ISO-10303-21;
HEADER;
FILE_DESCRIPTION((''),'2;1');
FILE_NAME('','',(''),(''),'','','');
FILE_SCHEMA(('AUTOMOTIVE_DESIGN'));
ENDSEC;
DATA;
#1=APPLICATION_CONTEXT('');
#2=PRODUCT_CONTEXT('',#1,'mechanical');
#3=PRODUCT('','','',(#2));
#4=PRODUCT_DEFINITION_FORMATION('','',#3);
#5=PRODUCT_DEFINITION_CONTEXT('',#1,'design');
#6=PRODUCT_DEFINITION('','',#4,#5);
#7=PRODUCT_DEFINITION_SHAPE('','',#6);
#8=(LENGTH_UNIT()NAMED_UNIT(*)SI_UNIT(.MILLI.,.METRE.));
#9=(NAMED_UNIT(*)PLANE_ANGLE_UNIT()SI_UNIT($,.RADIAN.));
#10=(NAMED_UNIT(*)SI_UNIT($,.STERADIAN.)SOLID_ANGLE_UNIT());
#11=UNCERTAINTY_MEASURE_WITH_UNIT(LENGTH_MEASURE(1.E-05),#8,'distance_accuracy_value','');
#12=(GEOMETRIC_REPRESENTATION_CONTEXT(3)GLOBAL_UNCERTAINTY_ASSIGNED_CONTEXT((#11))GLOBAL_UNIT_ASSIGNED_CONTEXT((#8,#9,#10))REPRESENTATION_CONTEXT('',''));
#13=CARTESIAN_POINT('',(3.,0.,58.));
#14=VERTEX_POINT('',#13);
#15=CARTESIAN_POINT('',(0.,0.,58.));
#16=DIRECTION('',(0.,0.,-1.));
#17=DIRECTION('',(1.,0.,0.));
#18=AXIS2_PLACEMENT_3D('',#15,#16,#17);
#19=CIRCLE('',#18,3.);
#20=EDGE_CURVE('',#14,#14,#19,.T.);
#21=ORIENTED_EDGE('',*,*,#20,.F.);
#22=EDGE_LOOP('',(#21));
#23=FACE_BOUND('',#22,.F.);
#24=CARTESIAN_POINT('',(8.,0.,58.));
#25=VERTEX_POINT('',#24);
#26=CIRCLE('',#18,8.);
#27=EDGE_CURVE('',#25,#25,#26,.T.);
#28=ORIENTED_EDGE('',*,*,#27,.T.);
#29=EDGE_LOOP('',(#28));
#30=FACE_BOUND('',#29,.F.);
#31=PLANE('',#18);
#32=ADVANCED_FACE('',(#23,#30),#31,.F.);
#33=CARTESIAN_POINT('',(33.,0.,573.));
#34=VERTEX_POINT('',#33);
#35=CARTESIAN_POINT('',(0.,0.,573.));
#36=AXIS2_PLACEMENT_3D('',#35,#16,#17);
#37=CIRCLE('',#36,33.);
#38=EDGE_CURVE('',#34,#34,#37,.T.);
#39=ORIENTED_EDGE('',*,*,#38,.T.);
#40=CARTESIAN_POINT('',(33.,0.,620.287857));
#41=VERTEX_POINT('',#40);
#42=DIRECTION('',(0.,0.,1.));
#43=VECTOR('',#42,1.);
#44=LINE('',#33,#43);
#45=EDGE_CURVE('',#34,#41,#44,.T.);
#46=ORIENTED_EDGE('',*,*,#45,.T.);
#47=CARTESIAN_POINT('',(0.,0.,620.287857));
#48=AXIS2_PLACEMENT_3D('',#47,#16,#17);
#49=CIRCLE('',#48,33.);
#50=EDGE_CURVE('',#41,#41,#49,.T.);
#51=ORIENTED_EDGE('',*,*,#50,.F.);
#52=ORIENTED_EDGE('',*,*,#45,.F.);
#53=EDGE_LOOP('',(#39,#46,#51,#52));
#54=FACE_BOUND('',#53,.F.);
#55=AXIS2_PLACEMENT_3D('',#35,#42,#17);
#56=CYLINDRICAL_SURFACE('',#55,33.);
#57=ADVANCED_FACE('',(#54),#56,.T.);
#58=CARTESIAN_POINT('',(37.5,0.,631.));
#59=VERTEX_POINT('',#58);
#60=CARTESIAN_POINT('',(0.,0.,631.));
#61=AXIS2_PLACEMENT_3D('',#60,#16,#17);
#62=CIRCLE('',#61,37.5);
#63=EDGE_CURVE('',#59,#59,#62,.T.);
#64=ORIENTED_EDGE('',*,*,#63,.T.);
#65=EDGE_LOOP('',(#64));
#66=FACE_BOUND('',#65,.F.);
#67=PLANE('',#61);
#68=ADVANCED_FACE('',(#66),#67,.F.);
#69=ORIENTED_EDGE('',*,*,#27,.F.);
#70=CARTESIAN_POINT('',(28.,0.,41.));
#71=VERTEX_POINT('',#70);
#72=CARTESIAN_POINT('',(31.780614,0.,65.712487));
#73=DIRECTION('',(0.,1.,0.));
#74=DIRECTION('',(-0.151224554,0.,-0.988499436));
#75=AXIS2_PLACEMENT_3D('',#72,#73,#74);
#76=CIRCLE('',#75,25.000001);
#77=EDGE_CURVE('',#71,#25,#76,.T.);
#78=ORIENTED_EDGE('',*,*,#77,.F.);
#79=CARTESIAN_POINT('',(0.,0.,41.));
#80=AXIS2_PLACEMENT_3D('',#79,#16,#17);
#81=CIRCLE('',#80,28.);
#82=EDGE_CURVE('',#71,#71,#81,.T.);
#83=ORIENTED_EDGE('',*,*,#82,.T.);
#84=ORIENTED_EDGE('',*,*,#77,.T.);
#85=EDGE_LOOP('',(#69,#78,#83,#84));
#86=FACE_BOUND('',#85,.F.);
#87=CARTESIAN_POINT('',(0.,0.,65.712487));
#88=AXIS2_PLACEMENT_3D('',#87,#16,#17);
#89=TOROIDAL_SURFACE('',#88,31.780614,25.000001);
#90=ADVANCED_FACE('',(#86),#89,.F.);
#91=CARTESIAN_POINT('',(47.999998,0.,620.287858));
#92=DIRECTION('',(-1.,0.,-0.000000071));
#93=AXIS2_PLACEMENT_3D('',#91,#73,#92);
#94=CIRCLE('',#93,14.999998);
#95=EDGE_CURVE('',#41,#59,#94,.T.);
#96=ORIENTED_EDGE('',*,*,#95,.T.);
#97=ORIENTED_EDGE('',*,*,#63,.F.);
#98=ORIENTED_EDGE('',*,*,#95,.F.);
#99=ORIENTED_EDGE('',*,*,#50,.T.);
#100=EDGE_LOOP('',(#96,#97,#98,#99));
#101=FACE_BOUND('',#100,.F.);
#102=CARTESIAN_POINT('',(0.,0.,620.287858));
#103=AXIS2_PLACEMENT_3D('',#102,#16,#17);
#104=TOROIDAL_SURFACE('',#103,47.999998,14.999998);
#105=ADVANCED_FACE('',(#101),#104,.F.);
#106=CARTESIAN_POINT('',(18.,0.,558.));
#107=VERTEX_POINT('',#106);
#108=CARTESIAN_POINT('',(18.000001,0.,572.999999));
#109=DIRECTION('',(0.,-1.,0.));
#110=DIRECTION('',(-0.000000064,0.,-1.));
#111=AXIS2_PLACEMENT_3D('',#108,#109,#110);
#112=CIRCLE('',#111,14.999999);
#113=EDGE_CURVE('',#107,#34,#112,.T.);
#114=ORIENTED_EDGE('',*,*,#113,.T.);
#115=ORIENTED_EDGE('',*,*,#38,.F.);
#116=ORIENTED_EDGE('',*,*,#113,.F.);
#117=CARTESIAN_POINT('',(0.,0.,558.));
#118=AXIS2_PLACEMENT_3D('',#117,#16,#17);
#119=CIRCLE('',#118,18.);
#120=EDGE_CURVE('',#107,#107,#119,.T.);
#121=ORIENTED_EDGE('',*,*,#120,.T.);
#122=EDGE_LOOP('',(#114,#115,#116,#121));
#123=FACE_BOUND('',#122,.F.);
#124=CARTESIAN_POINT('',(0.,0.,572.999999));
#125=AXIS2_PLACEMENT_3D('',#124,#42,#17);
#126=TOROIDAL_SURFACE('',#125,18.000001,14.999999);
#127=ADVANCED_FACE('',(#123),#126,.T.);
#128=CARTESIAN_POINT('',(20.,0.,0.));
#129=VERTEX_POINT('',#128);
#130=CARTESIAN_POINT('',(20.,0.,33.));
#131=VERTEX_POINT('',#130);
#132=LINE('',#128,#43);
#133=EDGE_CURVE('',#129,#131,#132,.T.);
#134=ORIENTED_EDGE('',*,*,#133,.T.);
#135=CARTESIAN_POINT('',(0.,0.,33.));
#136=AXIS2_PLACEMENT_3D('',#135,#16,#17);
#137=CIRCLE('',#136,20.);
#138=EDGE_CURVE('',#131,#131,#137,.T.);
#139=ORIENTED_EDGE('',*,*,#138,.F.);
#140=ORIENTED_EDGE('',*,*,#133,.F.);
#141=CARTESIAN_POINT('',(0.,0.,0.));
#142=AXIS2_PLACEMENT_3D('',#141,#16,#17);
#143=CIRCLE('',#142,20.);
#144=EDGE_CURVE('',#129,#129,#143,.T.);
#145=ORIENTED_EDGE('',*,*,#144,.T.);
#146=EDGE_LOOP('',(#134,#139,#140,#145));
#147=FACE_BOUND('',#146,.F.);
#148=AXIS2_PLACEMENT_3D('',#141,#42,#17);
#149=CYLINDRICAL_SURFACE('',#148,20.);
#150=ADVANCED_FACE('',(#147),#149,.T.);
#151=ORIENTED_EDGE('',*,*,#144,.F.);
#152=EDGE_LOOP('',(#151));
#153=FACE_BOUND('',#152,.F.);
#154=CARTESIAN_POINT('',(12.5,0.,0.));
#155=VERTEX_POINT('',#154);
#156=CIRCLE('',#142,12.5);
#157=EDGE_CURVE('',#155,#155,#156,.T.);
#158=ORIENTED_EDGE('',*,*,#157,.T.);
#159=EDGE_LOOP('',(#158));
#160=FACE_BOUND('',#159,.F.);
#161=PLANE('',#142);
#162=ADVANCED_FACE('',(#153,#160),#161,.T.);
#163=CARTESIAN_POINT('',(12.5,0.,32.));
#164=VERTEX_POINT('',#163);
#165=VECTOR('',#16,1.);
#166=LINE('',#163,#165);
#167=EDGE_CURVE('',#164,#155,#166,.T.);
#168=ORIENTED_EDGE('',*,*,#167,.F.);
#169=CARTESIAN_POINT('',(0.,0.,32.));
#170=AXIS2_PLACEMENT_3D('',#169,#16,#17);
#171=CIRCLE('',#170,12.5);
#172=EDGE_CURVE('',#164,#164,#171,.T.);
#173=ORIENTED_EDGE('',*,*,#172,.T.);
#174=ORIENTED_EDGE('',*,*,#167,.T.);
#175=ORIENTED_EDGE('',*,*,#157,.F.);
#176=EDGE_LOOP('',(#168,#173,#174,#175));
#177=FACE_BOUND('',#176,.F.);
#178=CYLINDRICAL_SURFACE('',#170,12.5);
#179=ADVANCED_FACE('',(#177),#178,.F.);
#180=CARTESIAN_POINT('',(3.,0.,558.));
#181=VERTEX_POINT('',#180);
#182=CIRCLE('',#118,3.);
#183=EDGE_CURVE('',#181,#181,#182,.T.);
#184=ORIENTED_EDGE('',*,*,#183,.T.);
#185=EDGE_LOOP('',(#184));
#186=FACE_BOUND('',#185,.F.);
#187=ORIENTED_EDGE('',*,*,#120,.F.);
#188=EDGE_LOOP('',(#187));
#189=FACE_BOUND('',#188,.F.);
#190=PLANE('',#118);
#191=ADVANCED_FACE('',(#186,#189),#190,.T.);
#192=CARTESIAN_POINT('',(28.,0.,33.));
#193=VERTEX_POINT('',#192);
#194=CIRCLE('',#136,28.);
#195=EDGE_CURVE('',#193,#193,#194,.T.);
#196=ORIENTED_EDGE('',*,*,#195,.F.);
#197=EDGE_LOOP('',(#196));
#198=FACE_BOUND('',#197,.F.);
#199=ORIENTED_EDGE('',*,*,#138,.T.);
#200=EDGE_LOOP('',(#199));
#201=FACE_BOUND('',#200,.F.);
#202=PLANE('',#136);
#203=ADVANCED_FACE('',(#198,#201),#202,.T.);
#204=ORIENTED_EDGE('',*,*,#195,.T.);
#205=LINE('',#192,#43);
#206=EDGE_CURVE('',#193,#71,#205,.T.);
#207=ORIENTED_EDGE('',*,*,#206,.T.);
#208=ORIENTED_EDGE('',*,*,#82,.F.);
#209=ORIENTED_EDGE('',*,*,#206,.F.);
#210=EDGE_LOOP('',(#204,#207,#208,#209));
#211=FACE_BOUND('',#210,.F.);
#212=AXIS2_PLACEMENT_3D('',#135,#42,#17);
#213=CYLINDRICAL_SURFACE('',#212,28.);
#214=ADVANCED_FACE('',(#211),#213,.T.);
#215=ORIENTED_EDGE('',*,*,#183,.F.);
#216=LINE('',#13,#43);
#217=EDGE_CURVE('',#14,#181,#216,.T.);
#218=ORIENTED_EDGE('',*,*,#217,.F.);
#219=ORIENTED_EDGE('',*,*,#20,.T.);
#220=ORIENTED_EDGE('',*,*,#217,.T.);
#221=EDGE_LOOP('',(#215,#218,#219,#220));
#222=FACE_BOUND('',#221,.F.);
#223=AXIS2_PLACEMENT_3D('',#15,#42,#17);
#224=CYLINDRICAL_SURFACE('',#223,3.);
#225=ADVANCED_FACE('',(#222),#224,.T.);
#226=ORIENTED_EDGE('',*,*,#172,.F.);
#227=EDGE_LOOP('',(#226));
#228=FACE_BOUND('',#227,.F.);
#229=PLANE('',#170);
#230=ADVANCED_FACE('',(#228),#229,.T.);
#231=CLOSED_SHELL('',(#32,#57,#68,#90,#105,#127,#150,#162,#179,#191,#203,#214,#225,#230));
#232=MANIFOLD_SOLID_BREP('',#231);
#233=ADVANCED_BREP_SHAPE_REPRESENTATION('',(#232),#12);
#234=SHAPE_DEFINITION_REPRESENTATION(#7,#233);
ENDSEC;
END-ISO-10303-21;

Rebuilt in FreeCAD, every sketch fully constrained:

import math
import FreeCAD as App
import Part
import Sketcher

V = App.Vector

doc = App.newDocument("Part")
body = doc.addObject("PartDesign::Body", "Body")

# Sketch on XZ plane
sketch1 = body.newObject("Sketcher::SketchObject", "Sketch")
sketch1.AttachmentSupport = (doc.getObject("XZ_Plane"), [""])
sketch1.MapMode = "FlatFace"
sketch1.addGeometry([
    Part.LineSegment(V(0, 631, 0), V(0, 32, 0)),  # 0
    Part.LineSegment(V(0, 32, 0), V(12, 32, 0)),  # 1
    Part.LineSegment(V(12, 32, 0), V(12, 0, 0)),  # 2
    Part.LineSegment(V(12, 0, 0), V(20, 0, 0)),  # 3
    Part.LineSegment(V(20, 0, 0), V(20, 33, 0)),  # 4
    Part.LineSegment(V(20, 33, 0), V(28, 33, 0)),  # 5
    Part.LineSegment(V(28, 33, 0), V(28, 41, 0)),  # 6
    Part.ArcOfCircle(Part.Circle(V(32, 66, 0), V(0, 0, 1), 25), math.radians(-162), math.radians(-99)),  # 7
    Part.LineSegment(V(8, 58, 0), V(3, 58, 0)),  # 8
    Part.LineSegment(V(3, 58, 0), V(3, 558, 0)),  # 9
    Part.LineSegment(V(3, 558, 0), V(18, 558, 0)),  # 10
    Part.ArcOfCircle(Part.Circle(V(18, 573, 0), V(0, 0, 1), 15), math.radians(-90), math.radians(0)),  # 11
    Part.LineSegment(V(33, 573, 0), V(33, 620, 0)),  # 12
    Part.ArcOfCircle(Part.Circle(V(48, 620, 0), V(0, 0, 1), 15), math.radians(134), math.radians(180)),  # 13
    Part.LineSegment(V(38, 631, 0), V(0, 631, 0)),  # 14
], False)
sketch1.addConstraint([
    Sketcher.Constraint("Coincident", 0, 2, 1, 1),
    Sketcher.Constraint("Coincident", 1, 2, 2, 1),
    Sketcher.Constraint("Coincident", 2, 2, 3, 1),
    Sketcher.Constraint("Coincident", 3, 2, 4, 1),
    Sketcher.Constraint("Coincident", 4, 2, 5, 1),
    Sketcher.Constraint("Coincident", 5, 2, 6, 1),
    Sketcher.Constraint("Coincident", 6, 2, 7, 2),
    Sketcher.Constraint("Coincident", 7, 1, 8, 1),
    Sketcher.Constraint("Coincident", 8, 2, 9, 1),
    Sketcher.Constraint("Coincident", 9, 2, 10, 1),
    Sketcher.Constraint("Tangent", 10, 2, 11, 1),
    Sketcher.Constraint("Tangent", 11, 2, 12, 1),
    Sketcher.Constraint("Tangent", 12, 2, 13, 2),
    Sketcher.Constraint("Coincident", 13, 1, 14, 1),
    Sketcher.Constraint("Coincident", 14, 2, 0, 1),
    Sketcher.Constraint("Vertical", 0),
    Sketcher.Constraint("Horizontal", 1),
    Sketcher.Constraint("Vertical", 2),
    Sketcher.Constraint("Horizontal", 3),
    Sketcher.Constraint("Vertical", 4),
    Sketcher.Constraint("Horizontal", 5),
    Sketcher.Constraint("Vertical", 6),
    Sketcher.Constraint("Horizontal", 8),
    Sketcher.Constraint("Vertical", 9),
    Sketcher.Constraint("Horizontal", 10),
    Sketcher.Constraint("Vertical", 12),
    Sketcher.Constraint("Horizontal", 14),
    Sketcher.Constraint("Equal", 11, 13),
    Sketcher.Constraint("PointOnObject", 0, 2, -2),
    Sketcher.Constraint("PointOnObject", 2, 2, -1),
    Sketcher.Constraint("Equal", 5, 6),
    Sketcher.Constraint("Radius", 7, 25.000001),
    Sketcher.Constraint("Radius", 11, 14.999999),
    Sketcher.Constraint("DistanceX", 5, 1, 5, 2, 8.0),
    Sketcher.Constraint("DistanceX", 8, 2, 8, 1, 5.0),
    Sketcher.Constraint("DistanceX", 10, 1, 10, 2, 15.0),
    Sketcher.Constraint("DistanceY", 0, 2, 0, 1, 599.0),
    Sketcher.Constraint("DistanceY", 2, 2, 2, 1, 32.0),
    Sketcher.Constraint("DistanceY", 4, 1, 4, 2, 33.0),
    Sketcher.Constraint("DistanceY", 9, 1, 9, 2, 500.0),
    Sketcher.Constraint("DistanceX", 1, 1, 1, 2, 12.5),
    Sketcher.Constraint("DistanceX", 3, 1, 3, 2, 7.5),
    Sketcher.Constraint("DistanceX", 14, 2, 14, 1, 37.5),
    Sketcher.Constraint("DistanceX", -1, 1, 11, 3, 18.000001),
    Sketcher.Constraint("DistanceY", -1, 1, 11, 3, 572.999999),
])
revolution = body.newObject("PartDesign::Revolution", "Revolution")
revolution.Profile = sketch1
revolution.ReferenceAxis = (sketch1, ["V_Axis"])
revolution.Angle = 360

doc.recompute()
